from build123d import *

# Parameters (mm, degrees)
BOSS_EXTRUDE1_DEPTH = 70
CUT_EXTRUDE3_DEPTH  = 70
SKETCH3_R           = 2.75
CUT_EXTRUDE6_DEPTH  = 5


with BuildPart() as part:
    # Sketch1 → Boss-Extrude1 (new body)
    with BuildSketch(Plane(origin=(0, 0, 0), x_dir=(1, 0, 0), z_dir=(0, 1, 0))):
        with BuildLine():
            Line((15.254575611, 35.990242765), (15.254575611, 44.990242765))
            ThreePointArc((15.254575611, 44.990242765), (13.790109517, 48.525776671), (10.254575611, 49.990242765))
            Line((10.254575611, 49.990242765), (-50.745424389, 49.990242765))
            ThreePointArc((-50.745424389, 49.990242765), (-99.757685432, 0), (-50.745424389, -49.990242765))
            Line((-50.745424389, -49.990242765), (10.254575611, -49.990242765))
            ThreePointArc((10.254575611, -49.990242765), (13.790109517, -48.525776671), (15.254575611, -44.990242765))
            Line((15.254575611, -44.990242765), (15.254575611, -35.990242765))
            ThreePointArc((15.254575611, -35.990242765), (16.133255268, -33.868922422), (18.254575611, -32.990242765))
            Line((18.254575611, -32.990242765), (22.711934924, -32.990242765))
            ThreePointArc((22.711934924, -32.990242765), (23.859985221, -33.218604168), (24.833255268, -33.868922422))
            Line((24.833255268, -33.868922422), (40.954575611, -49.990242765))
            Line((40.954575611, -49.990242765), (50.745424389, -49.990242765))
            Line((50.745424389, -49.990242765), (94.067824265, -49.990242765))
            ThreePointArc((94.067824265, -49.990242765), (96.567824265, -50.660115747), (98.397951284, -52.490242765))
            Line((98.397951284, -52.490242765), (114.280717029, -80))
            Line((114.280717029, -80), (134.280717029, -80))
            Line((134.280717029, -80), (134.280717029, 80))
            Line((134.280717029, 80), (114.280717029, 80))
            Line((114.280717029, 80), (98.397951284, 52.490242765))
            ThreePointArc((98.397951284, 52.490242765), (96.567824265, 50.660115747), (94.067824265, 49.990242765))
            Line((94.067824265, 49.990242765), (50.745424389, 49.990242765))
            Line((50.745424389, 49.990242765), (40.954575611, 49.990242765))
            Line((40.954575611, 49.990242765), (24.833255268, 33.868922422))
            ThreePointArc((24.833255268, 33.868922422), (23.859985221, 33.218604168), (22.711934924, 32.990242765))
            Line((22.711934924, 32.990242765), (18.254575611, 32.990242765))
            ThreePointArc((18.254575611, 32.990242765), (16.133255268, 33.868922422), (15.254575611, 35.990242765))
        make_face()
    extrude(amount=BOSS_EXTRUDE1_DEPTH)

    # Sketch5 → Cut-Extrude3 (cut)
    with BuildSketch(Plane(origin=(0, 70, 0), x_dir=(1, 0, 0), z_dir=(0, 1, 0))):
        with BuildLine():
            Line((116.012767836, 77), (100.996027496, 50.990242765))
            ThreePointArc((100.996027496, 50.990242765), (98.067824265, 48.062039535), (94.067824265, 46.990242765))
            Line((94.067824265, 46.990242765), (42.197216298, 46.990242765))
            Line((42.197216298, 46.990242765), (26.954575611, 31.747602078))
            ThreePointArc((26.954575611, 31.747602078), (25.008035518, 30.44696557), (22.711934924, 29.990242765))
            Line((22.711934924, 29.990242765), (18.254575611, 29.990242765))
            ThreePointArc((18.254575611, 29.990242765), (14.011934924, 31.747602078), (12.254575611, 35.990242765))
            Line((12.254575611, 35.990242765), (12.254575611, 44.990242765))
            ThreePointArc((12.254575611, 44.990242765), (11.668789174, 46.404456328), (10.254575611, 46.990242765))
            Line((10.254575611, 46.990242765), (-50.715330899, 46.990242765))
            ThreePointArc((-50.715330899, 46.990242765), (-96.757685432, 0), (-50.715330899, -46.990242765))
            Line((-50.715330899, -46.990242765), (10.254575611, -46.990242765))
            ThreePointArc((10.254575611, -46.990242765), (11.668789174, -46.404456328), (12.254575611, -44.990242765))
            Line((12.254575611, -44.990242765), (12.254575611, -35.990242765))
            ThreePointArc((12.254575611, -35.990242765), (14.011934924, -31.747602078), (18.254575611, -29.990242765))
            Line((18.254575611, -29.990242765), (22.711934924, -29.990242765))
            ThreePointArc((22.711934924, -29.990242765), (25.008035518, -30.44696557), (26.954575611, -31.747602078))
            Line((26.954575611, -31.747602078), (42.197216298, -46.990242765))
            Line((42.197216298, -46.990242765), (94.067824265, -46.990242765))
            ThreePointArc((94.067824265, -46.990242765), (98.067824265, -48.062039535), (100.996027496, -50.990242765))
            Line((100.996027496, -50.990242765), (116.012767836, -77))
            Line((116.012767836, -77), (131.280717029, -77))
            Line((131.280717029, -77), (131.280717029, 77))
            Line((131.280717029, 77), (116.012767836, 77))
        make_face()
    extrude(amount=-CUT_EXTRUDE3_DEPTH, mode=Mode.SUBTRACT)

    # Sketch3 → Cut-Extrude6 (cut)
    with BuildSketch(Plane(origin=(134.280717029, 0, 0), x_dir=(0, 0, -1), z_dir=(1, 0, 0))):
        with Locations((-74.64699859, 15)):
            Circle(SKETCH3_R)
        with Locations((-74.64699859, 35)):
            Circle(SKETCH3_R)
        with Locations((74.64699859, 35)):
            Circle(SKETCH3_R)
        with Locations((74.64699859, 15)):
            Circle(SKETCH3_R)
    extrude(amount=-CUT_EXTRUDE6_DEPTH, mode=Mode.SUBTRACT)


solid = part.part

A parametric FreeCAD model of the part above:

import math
import FreeCAD as App
import Part
import Sketcher
Q = App.Units.Quantity

doc = App.newDocument("Part")
body = doc.addObject("PartDesign::Body", "Body")

sketch1 = doc.addObject("Sketcher::SketchObject", "Sketch")
body.addObject(sketch1)
sketch1.AttachmentSupport = (doc.XZ_Plane, [""])
sketch1.MapMode = "FlatFace"
sketch1.addGeometry([
    Part.LineSegment(App.Vector(15.254576, -35.990243, 0), App.Vector(15.254576, -44.990243, 0)),
    Part.ArcOfCircle(Part.Circle(App.Vector(10.254576, -44.990243, 0), App.Vector(0, 0, 1), 5), math.radians(-90), math.radians(0)),
    Part.LineSegment(App.Vector(10.254576, -49.990243, 0), App.Vector(-50.745424, -49.990243, 0)),
    Part.ArcOfCircle(Part.Circle(App.Vector(-49.757685, 0, 0), App.Vector(0, 0, 1), 50), math.radians(91.131939), math.radians(268.868061)),
    Part.LineSegment(App.Vector(-50.745424, 49.990243, 0), App.Vector(10.254576, 49.990243, 0)),
    Part.ArcOfCircle(Part.Circle(App.Vector(10.254576, 44.990243, 0), App.Vector(0, 0, 1), 5), math.radians(0), math.radians(90)),
    Part.LineSegment(App.Vector(15.254576, 44.990243, 0), App.Vector(15.254576, 35.990243, 0)),
    Part.ArcOfCircle(Part.Circle(App.Vector(18.254576, 35.990243, 0), App.Vector(0, 0, 1), 3), math.radians(-180), math.radians(-90)),
    Part.LineSegment(App.Vector(18.254576, 32.990243, 0), App.Vector(22.711935, 32.990243, 0)),
    Part.ArcOfCircle(Part.Circle(App.Vector(22.711935, 35.990243, 0), App.Vector(0, 0, 1), 3), math.radians(-90), math.radians(-45)),
    Part.LineSegment(App.Vector(24.833255, 33.868922, 0), App.Vector(40.954576, 49.990243, 0)),
    Part.LineSegment(App.Vector(40.954576, 49.990243, 0), App.Vector(94.067824, 49.990243, 0)),
    Part.ArcOfCircle(Part.Circle(App.Vector(94.067824, 54.990243, 0), App.Vector(0, 0, 1), 5), math.radians(-90), math.radians(-30)),
    Part.LineSegment(App.Vector(98.397951, 52.490243, 0), App.Vector(114.280717, 80, 0)),
    Part.LineSegment(App.Vector(114.280717, 80, 0), App.Vector(134.280717, 80, 0)),
    Part.LineSegment(App.Vector(134.280717, 80, 0), App.Vector(134.280717, -80, 0)),
    Part.LineSegment(App.Vector(134.280717, -80, 0), App.Vector(114.280717, -80, 0)),
    Part.LineSegment(App.Vector(114.280717, -80, 0), App.Vector(98.397951, -52.490243, 0)),
    Part.ArcOfCircle(Part.Circle(App.Vector(94.067824, -54.990243, 0), App.Vector(0, 0, 1), 5), math.radians(30), math.radians(90)),
    Part.LineSegment(App.Vector(94.067824, -49.990243, 0), App.Vector(40.954576, -49.990243, 0)),
    Part.LineSegment(App.Vector(40.954576, -49.990243, 0), App.Vector(24.833255, -33.868922, 0)),
    Part.ArcOfCircle(Part.Circle(App.Vector(22.711935, -35.990243, 0), App.Vector(0, 0, 1), 3), math.radians(45), math.radians(90)),
    Part.LineSegment(App.Vector(22.711935, -32.990243, 0), App.Vector(18.254576, -32.990243, 0)),
    Part.ArcOfCircle(Part.Circle(App.Vector(18.254576, -35.990243, 0), App.Vector(0, 0, 1), 3), math.radians(90), math.radians(180)),
], False)
sketch1.addConstraint([
    Sketcher.Constraint("Coincident", 0, 2, 1, 2),
    Sketcher.Constraint("Coincident", 1, 1, 2, 1),
    Sketcher.Constraint("Coincident", 2, 2, 3, 2),
    Sketcher.Constraint("Coincident", 3, 1, 4, 1),
    Sketcher.Constraint("Coincident", 4, 2, 5, 2),
    Sketcher.Constraint("Coincident", 5, 1, 6, 1),
    Sketcher.Constraint("Coincident", 6, 2, 7, 1),
    Sketcher.Constraint("Coincident", 7, 2, 8, 1),
    Sketcher.Constraint("Coincident", 8, 2, 9, 1),
    Sketcher.Constraint("Coincident", 9, 2, 10, 1),
    Sketcher.Constraint("Coincident", 10, 2, 11, 1),
    Sketcher.Constraint("Coincident", 11, 2, 12, 1),
    Sketcher.Constraint("Coincident", 12, 2, 13, 1),
    Sketcher.Constraint("Coincident", 13, 2, 14, 1),
    Sketcher.Constraint("Coincident", 14, 2, 15, 1),
    Sketcher.Constraint("Coincident", 15, 2, 16, 1),
    Sketcher.Constraint("Coincident", 16, 2, 17, 1),
    Sketcher.Constraint("Coincident", 17, 2, 18, 1),
    Sketcher.Constraint("Coincident", 18, 2, 19, 1),
    Sketcher.Constraint("Coincident", 19, 2, 20, 1),
    Sketcher.Constraint("Coincident", 20, 2, 21, 1),
    Sketcher.Constraint("Coincident", 21, 2, 22, 1),
    Sketcher.Constraint("Coincident", 22, 2, 23, 1),
    Sketcher.Constraint("Coincident", 23, 2, 0, 1),
    Sketcher.Constraint("Vertical", 0),
    Sketcher.Constraint("Horizontal", 2),
    Sketcher.Constraint("Horizontal", 4),
    Sketcher.Constraint("Vertical", 6),
    Sketcher.Constraint("Horizontal", 8),
    Sketcher.Constraint("Horizontal", 11),
    Sketcher.Constraint("Horizontal", 14),
    Sketcher.Constraint("Vertical", 15),
    Sketcher.Constraint("Horizontal", 16),
    Sketcher.Constraint("Horizontal", 19),
    Sketcher.Constraint("Horizontal", 22),
    Sketcher.Constraint("PointOnObject", 3, 3, -1),
    Sketcher.Constraint("Radius", 1, Q("5 mm")),
    Sketcher.Constraint("Radius", 3, Q("50 mm")),
    Sketcher.Constraint("Radius", 5, Q("5 mm")),
    Sketcher.Constraint("Radius", 7, Q("3 mm")),
    Sketcher.Constraint("Radius", 9, Q("3 mm")),
    Sketcher.Constraint("Radius", 12, Q("5 mm")),
    Sketcher.Constraint("Radius", 18, Q("5 mm")),
    Sketcher.Constraint("Radius", 21, Q("3 mm")),
    Sketcher.Constraint("Radius", 23, Q("3 mm")),
    Sketcher.Constraint("DistanceX", 2, 2, 2, 1, Q("61 mm")),
    Sketcher.Constraint("DistanceX", 4, 1, 4, 2, Q("61 mm")),
    Sketcher.Constraint("DistanceX", 14, 1, 14, 2, Q("20 mm")),
    Sketcher.Constraint("DistanceX", 16, 2, 16, 1, Q("20 mm")),
    Sketcher.Constraint("DistanceY", 0, 2, 0, 1, Q("9 mm")),
    Sketcher.Constraint("DistanceY", 6, 2, 6, 1, Q("9 mm")),
    Sketcher.Constraint("DistanceY", 15, 2, 15, 1, Q("160 mm")),
    Sketcher.Constraint("DistanceY", -1, 1, 13, 2, Q("80 mm")),
    Sketcher.Constraint("DistanceY", 7, 3, 5, 3, Q("9 mm")),
    Sketcher.Constraint("DistanceX", 1, 3, 7, 3, Q("8 mm")),
    Sketcher.Constraint("DistanceY", 9, 3, 12, 3, Q("19 mm")),
    Sketcher.Constraint("DistanceY", 18, 3, 1, 3, Q("10 mm")),
    Sketcher.Constraint("DistanceY", 1, 3, 21, 3, Q("9 mm")),
    Sketcher.Constraint("DistanceY", 0, 2, 23, 3, Q("9 mm")),
    Sketcher.Constraint("DistanceX", 1, 1, 0, 2, Q("5 mm")),
    Sketcher.Constraint("DistanceX", 3, 1, 5, 3, Q("61 mm")),
    Sketcher.Constraint("DistanceY", 5, 1, 4, 2, Q("5 mm")),
    Sketcher.Constraint("DistanceX", 6, 2, 7, 2, Q("3 mm")),
    Sketcher.Constraint("DistanceX", 0, 2, 22, 2, Q("3 mm")),
    Sketcher.Constraint("DistanceX", 5, 1, 10, 2, Q("25.7 mm")),
    Sketcher.Constraint("DistanceY", 11, 2, 12, 2, Q("2.5 mm")),
    Sketcher.Constraint("DistanceY", 18, 3, 17, 2, Q("2.5 mm")),
    Sketcher.Constraint("DistanceX", 0, 2, 19, 2, Q("25.7 mm")),
    Sketcher.Constraint("DistanceX", 8, 1, 8, 2, Q("4.457359 mm")),
    Sketcher.Constraint("DistanceX", 11, 1, 11, 2, Q("53.113249 mm")),
    Sketcher.Constraint("DistanceX", 19, 2, 19, 1, Q("53.113249 mm")),
    Sketcher.Constraint("DistanceX", 22, 2, 22, 1, Q("4.457359 mm")),
    Sketcher.Constraint("Distance", 10, Q("22.79899 mm")),
    Sketcher.Constraint("Distance", 13, Q("31.765531 mm")),
    Sketcher.Constraint("Distance", 17, Q("31.765531 mm")),
    Sketcher.Constraint("Distance", 20, Q("22.79899 mm")),
    Sketcher.Constraint("DistanceX", -1, 1, 12, 2, Q("98.397951 mm")),
    Sketcher.Constraint("DistanceX", 3, 3, 1, 3, Q("60.012261 mm")),
    Sketcher.Constraint("DistanceX", 7, 3, 9, 3, Q("4.457359 mm")),
    Sketcher.Constraint("DistanceX", 9, 3, 12, 3, Q("71.355889 mm")),
    Sketcher.Constraint("DistanceX", 1, 3, 21, 3, Q("12.457359 mm")),
])
pad1 = doc.addObject("PartDesign::Pad", "Pad")
body.addObject(pad1)
pad1.Profile = sketch1
pad1.Length = 70
pad1.Reversed = True

sketch2 = doc.addObject("Sketcher::SketchObject", "Sketch001")
body.addObject(sketch2)
sketch2.AttachmentSupport = (doc.XZ_Plane, [""])
sketch2.MapMode = "FlatFace"
sketch2.AttachmentOffset = App.Placement(App.Vector(0, 0, -70), App.Rotation())
sketch2.addGeometry([
    Part.LineSegment(App.Vector(116, -77, 0), App.Vector(101, -51, 0)),
    Part.ArcOfCircle(Part.Circle(App.Vector(94.1, -55, 0), App.Vector(0, 0, 1), 8), math.radians(30), math.radians(90)),
    Part.LineSegment(App.Vector(94.1, -47, 0), App.Vector(42.2, -47, 0)),
    Part.LineSegment(App.Vector(42.2, -47, 0), App.Vector(27, -31.7, 0)),
    Part.ArcOfCircle(Part.Circle(App.Vector(22.7, -36, 0), App.Vector(0, 0, 1), 6), math.radians(45), math.radians(90)),
    Part.LineSegment(App.Vector(22.7, -30, 0), App.Vector(18.3, -30, 0)),
    Part.ArcOfCircle(Part.Circle(App.Vector(18.3, -36, 0), App.Vector(0, 0, 1), 6), math.radians(90), math.radians(180)),
    Part.LineSegment(App.Vector(12.3, -36, 0), App.Vector(12.3, -45, 0)),
    Part.ArcOfCircle(Part.Circle(App.Vector(10.3, -45, 0), App.Vector(0, 0, 1), 2), math.radians(-90), math.radians(0)),
    Part.LineSegment(App.Vector(10.3, -47, 0), App.Vector(-50.7, -47, 0)),
    Part.ArcOfCircle(Part.Circle(App.Vector(-49.8, 0, 0), App.Vector(0, 0, 1), 47), math.radians(91), math.radians(269)),
    Part.LineSegment(App.Vector(-50.7, 47, 0), App.Vector(10.3, 47, 0)),
    Part.ArcOfCircle(Part.Circle(App.Vector(10.3, 45, 0), App.Vector(0, 0, 1), 2), math.radians(0), math.radians(90)),
    Part.LineSegment(App.Vector(12.3, 45, 0), App.Vector(12.3, 36, 0)),
    Part.ArcOfCircle(Part.Circle(App.Vector(18.3, 36, 0), App.Vector(0, 0, 1), 6), math.radians(180), math.radians(270)),
    Part.LineSegment(App.Vector(18.3, 30, 0), App.Vector(22.7, 30, 0)),
    Part.ArcOfCircle(Part.Circle(App.Vector(22.7, 36, 0), App.Vector(0, 0, 1), 6), math.radians(-90), math.radians(-45)),
    Part.LineSegment(App.Vector(27, 31.7, 0), App.Vector(42.2, 47, 0)),
    Part.LineSegment(App.Vector(42.2, 47, 0), App.Vector(94.1, 47, 0)),
    Part.ArcOfCircle(Part.Circle(App.Vector(94.1, 55, 0), App.Vector(0, 0, 1), 8), math.radians(-90), math.radians(-30)),
    Part.LineSegment(App.Vector(101, 51, 0), App.Vector(116, 77, 0)),
    Part.LineSegment(App.Vector(116, 77, 0), App.Vector(131.3, 77, 0)),
    Part.LineSegment(App.Vector(131.3, 77, 0), App.Vector(131.3, -77, 0)),
    Part.LineSegment(App.Vector(131.3, -77, 0), App.Vector(116, -77, 0)),
], False)
sketch2.addConstraint([
    Sketcher.Constraint("Tangent", 0, 2, 1, 1),
    Sketcher.Constraint("Tangent", 1, 2, 2, 1),
    Sketcher.Constraint("Coincident", 2, 2, 3, 1),
    Sketcher.Constraint("Tangent", 3, 2, 4, 1),
    Sketcher.Constraint("Tangent", 4, 2, 5, 1),
    Sketcher.Constraint("Tangent", 5, 2, 6, 1),
    Sketcher.Constraint("Tangent", 6, 2, 7, 1),
    Sketcher.Constraint("Tangent", 7, 2, 8, 2),
    Sketcher.Constraint("Tangent", 8, 1, 9, 1),
    Sketcher.Constraint("Coincident", 9, 2, 10, 2),
    Sketcher.Constraint("Coincident", 10, 1, 11, 1),
    Sketcher.Constraint("Tangent", 11, 2, 12, 2),
    Sketcher.Constraint("Tangent", 12, 1, 13, 1),
    Sketcher.Constraint("Tangent", 13, 2, 14, 1),
    Sketcher.Constraint("Tangent", 14, 2, 15, 1),
    Sketcher.Constraint("Tangent", 15, 2, 16, 1),
    Sketcher.Constraint("Tangent", 16, 2, 17, 1),
    Sketcher.Constraint("Coincident", 17, 2, 18, 1),
    Sketcher.Constraint("Tangent", 18, 2, 19, 1),
    Sketcher.Constraint("Tangent", 19, 2, 20, 1),
    Sketcher.Constraint("Coincident", 20, 2, 21, 1),
    Sketcher.Constraint("Coincident", 21, 2, 22, 1),
    Sketcher.Constraint("Coincident", 22, 2, 23, 1),
    Sketcher.Constraint("Coincident", 23, 2, 0, 1),
    Sketcher.Constraint("Horizontal", 2),
    Sketcher.Constraint("Horizontal", 5),
    Sketcher.Constraint("Vertical", 7),
    Sketcher.Constraint("Horizontal", 9),
    Sketcher.Constraint("Horizontal", 11),
    Sketcher.Constraint("Vertical", 13),
    Sketcher.Constraint("Horizontal", 15),
    Sketcher.Constraint("Horizontal", 18),
    Sketcher.Constraint("Horizontal", 21),
    Sketcher.Constraint("Vertical", 22),
    Sketcher.Constraint("Horizontal", 23),
    Sketcher.Constraint("Equal", 4, 6),
    Sketcher.Constraint("Equal", 8, 12),
    Sketcher.Constraint("Equal", 6, 14),
    Sketcher.Constraint("Equal", 14, 16),
    Sketcher.Constraint("Equal", 1, 19),
    Sketcher.Constraint("Symmetric", 8, 3, 12, 3, -1),
    Sketcher.Constraint("Symmetric", 4, 3, 16, 3, -1),
    Sketcher.Constraint("Symmetric", 1, 3, 19, 3, -1),
    Sketcher.Constraint("Symmetric", 20, 2, 23, 2, -1),
    Sketcher.Constraint("PointOnObject", 10, 3, -1),
    Sketcher.Constraint("Perpendicular", 3, 17),
    Sketcher.Constraint("Horizontal", 2, 2, 8, 1),
    Sketcher.Constraint("Vertical", 3, 2, 16, 2),
    Sketcher.Constraint("Radius", 1, Q("8 mm")),
    Sketcher.Constraint("Radius", 4, Q("6 mm")),
    Sketcher.Constraint("Radius", 8, Q("2 mm")),
    Sketcher.Constraint("Radius", 10, Q("47 mm")),
    Sketcher.Constraint("DistanceY", 7, 2, 7, 1, Q("9 mm")),
    Sketcher.Constraint("DistanceY", 22, 2, 22, 1, Q("154 mm")),
    Sketcher.Constraint("Angle", 0, Q("120 deg")),
    Sketcher.Constraint("DistanceX", 6, 3, 3, 2, Q("8.7 mm")),
    Sketcher.Constraint("DistanceX", 21, 1, 21, 2, Q("15.267949 mm")),
    Sketcher.Constraint("DistanceX", 17, 2, 21, 2, Q("89.083501 mm")),
    Sketcher.Constraint("Distance", 0, Q("30.033481 mm")),
    Sketcher.Constraint("DistanceX", 9, 2, 9, 1, Q("60.969907 mm")),
    Sketcher.Constraint("DistanceX", 9, 2, -1, 1, Q("50.715331 mm")),
])
pocket1 = doc.addObject("PartDesign::Pocket", "Pocket")
body.addObject(pocket1)
pocket1.Profile = sketch2
pocket1.Length = 70
pocket1.Reversed = True

sketch3 = doc.addObject("Sketcher::SketchObject", "Sketch002")
body.addObject(sketch3)
sketch3.AttachmentSupport = (doc.YZ_Plane, [""])
sketch3.MapMode = "FlatFace"
sketch3.AttachmentOffset = App.Placement(App.Vector(0, 0, 134.280717), App.Rotation())
sketch3.addGeometry([
    Part.Circle(App.Vector(15, 74.6, 0), App.Vector(0, 0, 1), 2.8),
    Part.Circle(App.Vector(35, 74.6, 0), App.Vector(0, 0, 1), 2.8),
    Part.Circle(App.Vector(35, -74.6, 0), App.Vector(0, 0, 1), 2.8),
    Part.Circle(App.Vector(15, -74.6, 0), App.Vector(0, 0, 1), 2.8),
], False)
sketch3.addConstraint([
    Sketcher.Constraint("Equal", 0, 1),
    Sketcher.Constraint("Equal", 1, 2),
    Sketcher.Constraint("Equal", 2, 3),
    Sketcher.Constraint("Symmetric", 1, 3, 2, 3, -1),
    Sketcher.Constraint("Symmetric", 0, 3, 3, 3, -1),
    Sketcher.Constraint("Horizontal", 0, 3, 1, 3),
    Sketcher.Constraint("Diameter", 0, Q("5.5 mm")),
    Sketcher.Constraint("DistanceX", -1, 1, 0, 3, Q("15 mm")),
    Sketcher.Constraint("DistanceX", -1, 1, 1, 3, Q("35 mm")),
    Sketcher.Constraint("DistanceY", -1, 1, 0, 3, Q("74.646999 mm")),
])
pocket2 = doc.addObject("PartDesign::Pocket", "Pocket001")
body.addObject(pocket2)
pocket2.Profile = sketch3
pocket2.Length = 5

doc.recompute()
